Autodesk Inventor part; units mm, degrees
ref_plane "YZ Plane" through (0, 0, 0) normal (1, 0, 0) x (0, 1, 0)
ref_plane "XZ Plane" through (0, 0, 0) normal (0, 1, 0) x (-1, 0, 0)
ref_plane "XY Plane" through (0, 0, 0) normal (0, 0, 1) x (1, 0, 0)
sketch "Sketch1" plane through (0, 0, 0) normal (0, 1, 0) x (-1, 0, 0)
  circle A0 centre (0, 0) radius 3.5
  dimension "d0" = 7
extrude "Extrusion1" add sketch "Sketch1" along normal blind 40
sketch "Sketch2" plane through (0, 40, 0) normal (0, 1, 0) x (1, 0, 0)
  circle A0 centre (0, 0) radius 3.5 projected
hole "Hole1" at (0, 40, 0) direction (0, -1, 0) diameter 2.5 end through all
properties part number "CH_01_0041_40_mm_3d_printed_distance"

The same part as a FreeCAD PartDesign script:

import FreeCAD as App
import Part
import Sketcher
from FreeCAD import Vector

doc = App.newDocument("Part")
body = doc.addObject("PartDesign::Body", "Body")

# Sketch on XZ plane
sketch1 = body.newObject("Sketcher::SketchObject", "Sketch")
sketch1.AttachmentSupport = (doc.getObject("XZ_Plane"), [""])
sketch1.MapMode = "FlatFace"
sketch1.addGeometry(Part.Circle(Vector(0, 0, 0), Vector(0, 0, 1), 3.5), False)
sketch1.addConstraint([
    Sketcher.Constraint("Coincident", 0, 3, -1, 1),
    Sketcher.Constraint("Diameter", 0, 7.0),
])
pad1 = body.newObject("PartDesign::Pad", "Pad")
pad1.Profile = sketch1
pad1.Length = 40
pad1.Reversed = True

# Sketch on XZ plane
sketch2 = body.newObject("Sketcher::SketchObject", "Sketch001")
sketch2.AttachmentSupport = (doc.getObject("XZ_Plane"), [""])
sketch2.MapMode = "FlatFace"
sketch2.AttachmentOffset = App.Placement(Vector(0, 0, -40), App.Rotation())
sketch2.addGeometry(Part.Circle(Vector(0, 0, 0), Vector(0, 0, 1), 1.2), False)
sketch2.addConstraint([
    Sketcher.Constraint("Coincident", 0, 3, -1, 1),
    Sketcher.Constraint("Diameter", 0, 2.5),
])
doc.recompute()
hole = body.newObject("PartDesign::Hole", "Hole")
hole.Profile = sketch2
hole.ThreadType = "None"
hole.Diameter = 2.5
hole.DepthType = "ThroughAll"
hole.Reversed = True

doc.recompute()
